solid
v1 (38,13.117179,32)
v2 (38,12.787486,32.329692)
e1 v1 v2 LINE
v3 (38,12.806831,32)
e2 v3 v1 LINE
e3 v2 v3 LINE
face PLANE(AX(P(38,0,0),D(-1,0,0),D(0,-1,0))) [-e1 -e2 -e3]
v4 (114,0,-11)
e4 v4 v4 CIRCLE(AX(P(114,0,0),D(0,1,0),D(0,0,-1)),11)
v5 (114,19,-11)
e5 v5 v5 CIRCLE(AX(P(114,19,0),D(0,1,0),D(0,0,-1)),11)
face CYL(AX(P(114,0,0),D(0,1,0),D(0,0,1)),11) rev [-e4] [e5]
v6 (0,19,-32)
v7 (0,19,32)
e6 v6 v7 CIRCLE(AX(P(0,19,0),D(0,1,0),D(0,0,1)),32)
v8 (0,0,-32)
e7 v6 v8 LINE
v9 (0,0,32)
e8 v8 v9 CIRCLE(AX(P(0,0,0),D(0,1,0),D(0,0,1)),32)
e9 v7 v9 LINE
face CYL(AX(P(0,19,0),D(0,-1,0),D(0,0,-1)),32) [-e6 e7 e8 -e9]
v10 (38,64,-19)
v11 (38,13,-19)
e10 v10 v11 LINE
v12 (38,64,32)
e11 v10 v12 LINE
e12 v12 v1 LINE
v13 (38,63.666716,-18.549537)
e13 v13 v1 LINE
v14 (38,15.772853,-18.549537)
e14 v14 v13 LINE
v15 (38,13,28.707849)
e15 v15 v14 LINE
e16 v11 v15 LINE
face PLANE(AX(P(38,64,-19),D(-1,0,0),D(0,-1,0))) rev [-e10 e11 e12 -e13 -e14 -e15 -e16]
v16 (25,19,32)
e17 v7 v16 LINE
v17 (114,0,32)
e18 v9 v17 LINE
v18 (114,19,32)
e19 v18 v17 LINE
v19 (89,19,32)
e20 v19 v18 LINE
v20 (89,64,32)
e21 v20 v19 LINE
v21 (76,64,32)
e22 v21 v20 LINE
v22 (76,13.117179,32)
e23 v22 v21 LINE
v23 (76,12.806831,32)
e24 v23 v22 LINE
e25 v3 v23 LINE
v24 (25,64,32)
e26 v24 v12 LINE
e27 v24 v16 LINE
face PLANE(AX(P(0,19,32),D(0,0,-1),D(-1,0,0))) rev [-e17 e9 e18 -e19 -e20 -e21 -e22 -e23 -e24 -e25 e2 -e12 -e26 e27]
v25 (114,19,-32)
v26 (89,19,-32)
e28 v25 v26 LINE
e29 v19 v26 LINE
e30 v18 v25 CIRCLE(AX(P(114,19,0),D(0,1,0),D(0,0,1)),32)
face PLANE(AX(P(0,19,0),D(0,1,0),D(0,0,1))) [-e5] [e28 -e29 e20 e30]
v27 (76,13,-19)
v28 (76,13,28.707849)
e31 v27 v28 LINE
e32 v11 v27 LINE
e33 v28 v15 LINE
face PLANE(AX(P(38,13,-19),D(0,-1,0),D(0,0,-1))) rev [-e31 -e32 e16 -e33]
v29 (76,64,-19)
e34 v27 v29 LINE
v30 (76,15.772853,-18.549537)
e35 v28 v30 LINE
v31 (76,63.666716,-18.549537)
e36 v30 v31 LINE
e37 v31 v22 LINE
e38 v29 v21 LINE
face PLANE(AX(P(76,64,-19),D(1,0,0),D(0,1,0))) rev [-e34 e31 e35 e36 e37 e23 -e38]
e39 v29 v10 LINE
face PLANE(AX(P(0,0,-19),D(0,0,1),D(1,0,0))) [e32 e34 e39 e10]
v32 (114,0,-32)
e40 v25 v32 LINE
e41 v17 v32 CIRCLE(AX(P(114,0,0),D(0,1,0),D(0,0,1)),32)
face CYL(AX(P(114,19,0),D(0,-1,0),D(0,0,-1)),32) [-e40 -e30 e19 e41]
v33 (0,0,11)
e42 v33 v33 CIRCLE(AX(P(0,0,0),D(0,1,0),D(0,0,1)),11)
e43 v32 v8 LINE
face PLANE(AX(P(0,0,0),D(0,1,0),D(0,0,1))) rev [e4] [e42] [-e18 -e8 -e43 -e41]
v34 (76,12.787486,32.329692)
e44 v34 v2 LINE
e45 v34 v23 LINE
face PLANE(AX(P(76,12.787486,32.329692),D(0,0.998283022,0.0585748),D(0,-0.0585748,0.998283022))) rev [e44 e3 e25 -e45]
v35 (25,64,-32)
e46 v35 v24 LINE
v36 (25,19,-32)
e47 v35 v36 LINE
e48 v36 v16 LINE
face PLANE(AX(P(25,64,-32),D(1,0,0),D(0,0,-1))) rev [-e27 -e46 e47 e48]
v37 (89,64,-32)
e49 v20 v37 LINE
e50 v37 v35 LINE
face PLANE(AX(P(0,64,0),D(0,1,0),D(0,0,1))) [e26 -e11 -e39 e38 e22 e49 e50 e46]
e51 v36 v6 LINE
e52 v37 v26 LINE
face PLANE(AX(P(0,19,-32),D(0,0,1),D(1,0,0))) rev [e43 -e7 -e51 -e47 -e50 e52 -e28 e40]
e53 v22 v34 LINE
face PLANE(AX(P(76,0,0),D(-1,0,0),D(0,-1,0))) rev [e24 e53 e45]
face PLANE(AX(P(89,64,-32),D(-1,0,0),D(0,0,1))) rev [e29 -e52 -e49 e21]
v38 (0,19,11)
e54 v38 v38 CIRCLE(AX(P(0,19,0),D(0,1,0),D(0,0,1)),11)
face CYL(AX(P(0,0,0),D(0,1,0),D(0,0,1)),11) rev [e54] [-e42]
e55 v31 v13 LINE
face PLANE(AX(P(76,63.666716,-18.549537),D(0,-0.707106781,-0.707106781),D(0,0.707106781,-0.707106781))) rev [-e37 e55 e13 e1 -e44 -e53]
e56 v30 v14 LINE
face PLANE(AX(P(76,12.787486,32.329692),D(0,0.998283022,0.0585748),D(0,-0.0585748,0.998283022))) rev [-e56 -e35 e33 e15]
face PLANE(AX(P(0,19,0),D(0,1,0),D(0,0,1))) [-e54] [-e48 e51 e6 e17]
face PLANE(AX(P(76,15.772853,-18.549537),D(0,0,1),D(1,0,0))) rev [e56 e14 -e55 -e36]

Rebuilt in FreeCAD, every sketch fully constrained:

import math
import FreeCAD as App
import Part
import Sketcher
Q = App.Units.Quantity


def add_polygon(sketch, points):
    """Adds a closed chain of lines whose ends are joined by coincident constraints."""
    first, n = sketch.GeometryCount, len(points)
    for a, b in zip(points, points[1:] + points[:1]):
        sketch.addGeometry(Part.LineSegment(App.Vector(*a, 0), App.Vector(*b, 0)), False)
    for i in range(n):
        sketch.addConstraint(Sketcher.Constraint("Coincident", first + i, 2, first + (i + 1) % n, 1))

doc = App.newDocument("Part")
body = doc.addObject("PartDesign::Body", "Body")

sketch1 = doc.addObject("Sketcher::SketchObject", "Sketch")
body.addObject(sketch1)
sketch1.AttachmentSupport = (doc.XZ_Plane, [""])
sketch1.MapMode = "FlatFace"
sketch1.addGeometry(Part.LineSegment(App.Vector(114, -32, 0), App.Vector(0, -32, 0)), False)
sketch1.addGeometry(Part.ArcOfCircle(Part.Circle(App.Vector(0, 0, 0), App.Vector(0, 0, 1), 32), math.radians(90), math.radians(270)), False)
sketch1.addGeometry(Part.LineSegment(App.Vector(0, 32, 0), App.Vector(114, 32, 0)), False)
sketch1.addGeometry(Part.ArcOfCircle(Part.Circle(App.Vector(114, 0, 0), App.Vector(0, 0, 1), 32), math.radians(-90), math.radians(90)), False)
sketch1.addConstraint(Sketcher.Constraint("Tangent", 0, 2, 1, 2))
sketch1.addConstraint(Sketcher.Constraint("Tangent", 1, 1, 2, 1))
sketch1.addConstraint(Sketcher.Constraint("Tangent", 2, 2, 3, 2))
sketch1.addConstraint(Sketcher.Constraint("Tangent", 3, 1, 0, 1))
sketch1.addConstraint(Sketcher.Constraint("Horizontal", 0))
sketch1.addConstraint(Sketcher.Constraint("Horizontal", 2))
sketch1.addConstraint(Sketcher.Constraint("Coincident", 1, 3, -1, 1))
sketch1.addConstraint(Sketcher.Constraint("Radius", 1, 32.0))
sketch1.addConstraint(Sketcher.Constraint("DistanceX", 0, 2, 0, 1, 114.0))
pad1 = doc.addObject("PartDesign::Pad", "Pad")
body.addObject(pad1)
pad1.Profile = sketch1
pad1.Length = 19
pad1.Reversed = True

sketch2 = doc.addObject("Sketcher::SketchObject", "Sketch001")
body.addObject(sketch2)
sketch2.AttachmentSupport = (doc.XZ_Plane, [""])
sketch2.MapMode = "FlatFace"
sketch2.AttachmentOffset = App.Placement(App.Vector(0, 0, -19), App.Rotation())
sketch2.addGeometry(Part.Circle(App.Vector(0, 0, 0), App.Vector(0, 0, 1), 11), False)
sketch2.addGeometry(Part.Circle(App.Vector(114, 0, 0), App.Vector(0, 0, 1), 11), False)
sketch2.addConstraint(Sketcher.Constraint("Coincident", 0, 3, -1, 1))
sketch2.addConstraint(Sketcher.Constraint("Equal", 0, 1))
sketch2.addConstraint(Sketcher.Constraint("PointOnObject", 1, 3, -1))
sketch2.addConstraint(Sketcher.Constraint("Diameter", 0, 22.0))
sketch2.addConstraint(Sketcher.Constraint("DistanceX", -1, 1, 1, 3, 114.0))
pocket1 = doc.addObject("PartDesign::Pocket", "Pocket")
body.addObject(pocket1)
pocket1.Profile = sketch2
pocket1.Type = "ThroughAll"
pocket1.Reversed = True

sketch3 = doc.addObject("Sketcher::SketchObject", "Sketch002")
body.addObject(sketch3)
sketch3.AttachmentSupport = (doc.XZ_Plane, [""])
sketch3.MapMode = "FlatFace"
sketch3.AttachmentOffset = App.Placement(App.Vector(0, 0, -19), App.Rotation())
add_polygon(sketch3, [(25, -32), (25, 32), (89, 32), (89, -32)])
sketch3.addConstraint(Sketcher.Constraint("Vertical", 0))
sketch3.addConstraint(Sketcher.Constraint("Horizontal", 1))
sketch3.addConstraint(Sketcher.Constraint("Vertical", 2))
sketch3.addConstraint(Sketcher.Constraint("Horizontal", 3))
sketch3.addConstraint(Sketcher.Constraint("Equal", 3, 0))
sketch3.addConstraint(Sketcher.Constraint("DistanceX", 1, 1, 1, 2, 64.0))
sketch3.addConstraint(Sketcher.Constraint("DistanceX", -1, 1, 0, 2, 25.0))
sketch3.addConstraint(Sketcher.Constraint("DistanceY", -1, 1, 0, 2, 32.0))
pad2 = doc.addObject("PartDesign::Pad", "Pad001")
body.addObject(pad2)
pad2.Profile = sketch3
pad2.Length = 45
pad2.Reversed = True

sketch4 = doc.addObject("Sketcher::SketchObject", "Sketch003")
body.addObject(sketch4)
sketch4.AttachmentSupport = (doc.XY_Plane, [""])
sketch4.MapMode = "FlatFace"
sketch4.AttachmentOffset = App.Placement(App.Vector(0, 0, 32), App.Rotation())
add_polygon(sketch4, [(38, 64), (38, 13), (76, 13), (76, 64)])
sketch4.addConstraint(Sketcher.Constraint("Vertical", 0))
sketch4.addConstraint(Sketcher.Constraint("Horizontal", 1))
sketch4.addConstraint(Sketcher.Constraint("Vertical", 2))
sketch4.addConstraint(Sketcher.Constraint("Horizontal", 3))
sketch4.addConstraint(Sketcher.Constraint("DistanceX", 1, 1, 1, 2, 38.0))
sketch4.addConstraint(Sketcher.Constraint("DistanceY", 0, 2, 0, 1, 51.0))
sketch4.addConstraint(Sketcher.Constraint("DistanceX", -1, 1, 0, 2, 38.0))
sketch4.addConstraint(Sketcher.Constraint("DistanceY", -1, 1, 0, 2, 13.0))
pocket2 = doc.addObject("PartDesign::Pocket", "Pocket001")
body.addObject(pocket2)
pocket2.Profile = sketch4
pocket2.Length = 51

sketch5 = doc.addObject("Sketcher::SketchObject", "Sketch004")
body.addObject(sketch5)
sketch5.AttachmentSupport = (doc.YZ_Plane, [""])
sketch5.MapMode = "FlatFace"
sketch5.AttachmentOffset = App.Placement(App.Vector(0, 0, 38), App.Rotation())
add_polygon(sketch5, [(64, -19), (13, 32), (16, -19)])
sketch5.addConstraint(Sketcher.Constraint("Horizontal", 2))
sketch5.addConstraint(Sketcher.Constraint("Angle", 0, Q("135 deg")))
sketch5.addConstraint(Sketcher.Constraint("Distance", 1, 50.966738))
sketch5.addConstraint(Sketcher.Constraint("DistanceX", 2, 1, 2, 2, 47.893863))
sketch5.addConstraint(Sketcher.Constraint("DistanceX", -1, 1, 0, 2, 12.787486))
sketch5.addConstraint(Sketcher.Constraint("DistanceY", -1, 1, 0, 2, 32.329692))
pad3 = doc.addObject("PartDesign::Pad", "Pad002")
body.addObject(pad3)
pad3.Profile = sketch5
pad3.Length = 38

doc.recompute()
